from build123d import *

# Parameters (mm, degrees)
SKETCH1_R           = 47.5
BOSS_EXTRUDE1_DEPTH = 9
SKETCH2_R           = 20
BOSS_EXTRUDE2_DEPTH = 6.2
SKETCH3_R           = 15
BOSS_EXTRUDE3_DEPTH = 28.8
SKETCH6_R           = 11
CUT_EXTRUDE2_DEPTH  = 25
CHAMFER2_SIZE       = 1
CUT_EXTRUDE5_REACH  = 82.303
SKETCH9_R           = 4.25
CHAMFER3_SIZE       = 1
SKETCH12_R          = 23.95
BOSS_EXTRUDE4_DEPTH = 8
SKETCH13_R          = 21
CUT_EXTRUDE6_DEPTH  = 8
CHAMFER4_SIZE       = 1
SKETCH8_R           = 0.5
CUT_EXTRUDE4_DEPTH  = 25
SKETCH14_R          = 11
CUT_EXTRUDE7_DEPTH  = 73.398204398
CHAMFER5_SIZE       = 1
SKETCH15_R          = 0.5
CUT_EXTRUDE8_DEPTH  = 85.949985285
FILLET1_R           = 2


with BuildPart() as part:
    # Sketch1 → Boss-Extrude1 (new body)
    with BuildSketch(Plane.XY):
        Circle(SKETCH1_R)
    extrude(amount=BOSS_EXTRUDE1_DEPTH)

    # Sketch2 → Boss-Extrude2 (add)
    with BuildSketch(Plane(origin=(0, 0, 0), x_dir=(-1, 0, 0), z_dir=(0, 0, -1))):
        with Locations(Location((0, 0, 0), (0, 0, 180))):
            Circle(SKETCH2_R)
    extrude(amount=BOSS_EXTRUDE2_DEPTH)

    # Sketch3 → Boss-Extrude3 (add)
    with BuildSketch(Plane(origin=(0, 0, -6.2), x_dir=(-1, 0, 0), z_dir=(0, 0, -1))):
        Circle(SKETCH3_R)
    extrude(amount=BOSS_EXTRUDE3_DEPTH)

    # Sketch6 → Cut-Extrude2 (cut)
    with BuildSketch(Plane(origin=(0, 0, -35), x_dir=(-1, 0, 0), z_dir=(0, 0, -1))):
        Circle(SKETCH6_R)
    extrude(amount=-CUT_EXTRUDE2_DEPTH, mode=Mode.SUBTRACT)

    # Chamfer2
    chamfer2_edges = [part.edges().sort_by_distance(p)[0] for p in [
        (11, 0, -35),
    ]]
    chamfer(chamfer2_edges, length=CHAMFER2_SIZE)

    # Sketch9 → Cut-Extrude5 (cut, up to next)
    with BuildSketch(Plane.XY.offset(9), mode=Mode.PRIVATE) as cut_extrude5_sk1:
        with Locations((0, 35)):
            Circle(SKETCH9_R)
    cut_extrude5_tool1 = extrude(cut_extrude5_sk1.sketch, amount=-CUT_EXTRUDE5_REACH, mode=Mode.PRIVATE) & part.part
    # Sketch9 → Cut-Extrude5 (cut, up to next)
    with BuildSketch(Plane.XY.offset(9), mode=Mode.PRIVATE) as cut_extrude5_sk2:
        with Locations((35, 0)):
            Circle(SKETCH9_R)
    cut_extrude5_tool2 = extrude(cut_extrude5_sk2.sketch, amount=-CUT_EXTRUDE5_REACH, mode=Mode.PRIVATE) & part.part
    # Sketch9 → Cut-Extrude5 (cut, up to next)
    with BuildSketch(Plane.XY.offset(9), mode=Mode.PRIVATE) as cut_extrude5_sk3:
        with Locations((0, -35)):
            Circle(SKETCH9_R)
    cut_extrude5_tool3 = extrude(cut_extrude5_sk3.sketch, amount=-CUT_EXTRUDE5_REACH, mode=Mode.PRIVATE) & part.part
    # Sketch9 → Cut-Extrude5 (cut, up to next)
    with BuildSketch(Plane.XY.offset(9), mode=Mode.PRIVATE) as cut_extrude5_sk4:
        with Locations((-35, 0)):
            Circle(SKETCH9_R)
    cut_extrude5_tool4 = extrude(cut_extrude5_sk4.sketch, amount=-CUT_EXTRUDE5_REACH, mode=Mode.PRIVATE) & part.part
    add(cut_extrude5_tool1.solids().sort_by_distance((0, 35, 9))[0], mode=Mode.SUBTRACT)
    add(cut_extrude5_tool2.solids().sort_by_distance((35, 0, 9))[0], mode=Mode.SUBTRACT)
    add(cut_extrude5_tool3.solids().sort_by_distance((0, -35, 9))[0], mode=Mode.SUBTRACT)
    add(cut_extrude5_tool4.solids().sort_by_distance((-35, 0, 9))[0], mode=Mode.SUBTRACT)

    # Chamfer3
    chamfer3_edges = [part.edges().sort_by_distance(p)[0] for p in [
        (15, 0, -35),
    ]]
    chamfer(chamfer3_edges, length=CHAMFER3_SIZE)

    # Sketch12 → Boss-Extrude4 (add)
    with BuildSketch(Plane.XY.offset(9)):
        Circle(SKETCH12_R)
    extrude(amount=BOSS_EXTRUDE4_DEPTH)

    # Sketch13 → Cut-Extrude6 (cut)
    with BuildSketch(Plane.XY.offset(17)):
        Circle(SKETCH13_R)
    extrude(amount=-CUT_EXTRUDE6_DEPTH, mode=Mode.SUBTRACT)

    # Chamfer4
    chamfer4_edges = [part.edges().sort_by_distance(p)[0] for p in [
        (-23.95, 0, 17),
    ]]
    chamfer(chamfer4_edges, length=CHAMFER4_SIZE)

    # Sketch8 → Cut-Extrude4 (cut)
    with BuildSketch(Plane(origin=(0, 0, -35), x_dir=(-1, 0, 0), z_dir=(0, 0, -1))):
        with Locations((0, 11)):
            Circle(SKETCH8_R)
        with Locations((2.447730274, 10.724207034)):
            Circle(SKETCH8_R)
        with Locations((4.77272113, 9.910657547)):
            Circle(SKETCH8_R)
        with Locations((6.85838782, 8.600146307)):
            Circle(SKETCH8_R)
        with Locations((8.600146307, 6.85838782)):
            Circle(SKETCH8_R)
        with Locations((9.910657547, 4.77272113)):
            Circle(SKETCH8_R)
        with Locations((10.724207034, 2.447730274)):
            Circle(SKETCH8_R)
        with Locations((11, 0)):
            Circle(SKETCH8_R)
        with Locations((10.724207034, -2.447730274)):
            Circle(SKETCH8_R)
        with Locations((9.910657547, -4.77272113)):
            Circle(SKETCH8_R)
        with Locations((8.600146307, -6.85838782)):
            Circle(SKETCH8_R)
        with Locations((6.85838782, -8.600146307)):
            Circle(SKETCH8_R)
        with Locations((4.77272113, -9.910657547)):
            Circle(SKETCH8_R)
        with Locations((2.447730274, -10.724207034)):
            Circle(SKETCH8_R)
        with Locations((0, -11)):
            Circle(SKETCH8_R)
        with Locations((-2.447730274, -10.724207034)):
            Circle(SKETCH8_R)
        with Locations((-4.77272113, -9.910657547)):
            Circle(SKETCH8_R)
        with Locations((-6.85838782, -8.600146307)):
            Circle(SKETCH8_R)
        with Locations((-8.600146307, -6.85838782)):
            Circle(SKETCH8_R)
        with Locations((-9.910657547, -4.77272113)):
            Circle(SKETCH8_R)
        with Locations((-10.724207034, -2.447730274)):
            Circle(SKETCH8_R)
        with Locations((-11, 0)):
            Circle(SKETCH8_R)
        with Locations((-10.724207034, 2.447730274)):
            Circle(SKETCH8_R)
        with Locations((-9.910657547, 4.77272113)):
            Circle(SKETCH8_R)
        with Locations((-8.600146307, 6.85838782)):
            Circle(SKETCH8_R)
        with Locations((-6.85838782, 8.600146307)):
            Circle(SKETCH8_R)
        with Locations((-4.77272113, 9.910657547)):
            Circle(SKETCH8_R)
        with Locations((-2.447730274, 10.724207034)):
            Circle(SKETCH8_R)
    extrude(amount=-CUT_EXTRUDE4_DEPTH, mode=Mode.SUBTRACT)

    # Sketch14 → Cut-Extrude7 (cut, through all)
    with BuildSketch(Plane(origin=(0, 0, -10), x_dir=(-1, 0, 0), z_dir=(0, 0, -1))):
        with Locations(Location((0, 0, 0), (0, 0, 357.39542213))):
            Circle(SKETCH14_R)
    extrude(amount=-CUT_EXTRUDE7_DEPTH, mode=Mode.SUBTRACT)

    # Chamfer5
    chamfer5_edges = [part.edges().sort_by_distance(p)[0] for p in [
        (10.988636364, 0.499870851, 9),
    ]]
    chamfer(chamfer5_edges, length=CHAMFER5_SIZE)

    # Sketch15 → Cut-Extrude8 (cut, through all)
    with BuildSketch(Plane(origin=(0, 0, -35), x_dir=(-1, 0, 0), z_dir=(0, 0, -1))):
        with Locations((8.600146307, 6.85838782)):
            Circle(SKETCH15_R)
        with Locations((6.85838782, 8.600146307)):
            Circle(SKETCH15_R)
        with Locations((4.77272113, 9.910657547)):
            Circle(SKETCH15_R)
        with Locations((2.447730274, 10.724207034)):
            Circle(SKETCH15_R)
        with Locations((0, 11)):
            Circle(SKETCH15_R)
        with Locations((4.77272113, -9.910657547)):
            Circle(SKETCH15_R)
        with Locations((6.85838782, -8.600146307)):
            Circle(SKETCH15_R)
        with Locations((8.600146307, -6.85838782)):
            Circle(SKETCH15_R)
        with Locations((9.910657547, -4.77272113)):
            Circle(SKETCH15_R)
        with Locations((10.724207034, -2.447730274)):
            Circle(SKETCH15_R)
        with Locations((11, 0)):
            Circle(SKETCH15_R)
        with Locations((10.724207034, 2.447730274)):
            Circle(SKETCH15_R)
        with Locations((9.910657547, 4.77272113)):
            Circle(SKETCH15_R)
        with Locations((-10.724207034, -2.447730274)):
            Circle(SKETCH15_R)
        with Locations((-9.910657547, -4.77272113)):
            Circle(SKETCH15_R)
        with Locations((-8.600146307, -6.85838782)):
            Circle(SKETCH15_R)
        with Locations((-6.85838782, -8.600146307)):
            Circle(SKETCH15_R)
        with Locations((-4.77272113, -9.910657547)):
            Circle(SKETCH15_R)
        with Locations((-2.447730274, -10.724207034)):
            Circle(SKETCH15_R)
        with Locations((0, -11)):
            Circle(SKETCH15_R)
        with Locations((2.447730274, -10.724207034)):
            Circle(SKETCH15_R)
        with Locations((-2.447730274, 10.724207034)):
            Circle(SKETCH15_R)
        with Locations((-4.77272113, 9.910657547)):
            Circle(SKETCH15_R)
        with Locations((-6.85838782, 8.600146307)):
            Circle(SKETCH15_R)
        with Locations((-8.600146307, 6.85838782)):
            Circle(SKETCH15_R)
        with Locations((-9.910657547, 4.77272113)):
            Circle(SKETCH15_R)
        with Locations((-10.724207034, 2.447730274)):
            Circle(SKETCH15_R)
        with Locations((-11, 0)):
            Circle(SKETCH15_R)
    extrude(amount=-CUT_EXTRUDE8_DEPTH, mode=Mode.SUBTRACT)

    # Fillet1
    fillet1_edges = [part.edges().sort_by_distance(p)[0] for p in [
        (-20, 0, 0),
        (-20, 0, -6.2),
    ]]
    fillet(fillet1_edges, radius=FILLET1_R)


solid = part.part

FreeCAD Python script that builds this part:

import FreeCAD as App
import Part
import Sketcher
Q = App.Units.Quantity


def edges_at(feature, points):
    """Names of the edges that pass closest to the given points."""
    edges = feature.Shape.Edges
    near = lambda p: min(range(len(edges)), key=lambda i: edges[i].distToShape(Part.Vertex(*p))[0])
    return sorted({f"Edge{near(p) + 1}" for p in points})

doc = App.newDocument("Part")
body = doc.addObject("PartDesign::Body", "Body")

sketch1 = doc.addObject("Sketcher::SketchObject", "Sketch")
body.addObject(sketch1)
sketch1.AttachmentSupport = (doc.XY_Plane, [""])
sketch1.MapMode = "FlatFace"
sketch1.addGeometry(Part.Circle(App.Vector(0, 0, 0), App.Vector(0, 0, 1), 48), False)
sketch1.addConstraint([
    Sketcher.Constraint("Coincident", 0, 3, -1, 1),
    Sketcher.Constraint("Diameter", 0, Q("95 mm")),
])
pad1 = doc.addObject("PartDesign::Pad", "Pad")
body.addObject(pad1)
pad1.Profile = sketch1
pad1.Length = 9

sketch2 = doc.addObject("Sketcher::SketchObject", "Sketch001")
body.addObject(sketch2)
sketch2.AttachmentSupport = (doc.XY_Plane, [""])
sketch2.MapMode = "FlatFace"
sketch2.addGeometry(Part.Circle(App.Vector(0, 0, 0), App.Vector(0, 0, 1), 20), False)
sketch2.addConstraint([
    Sketcher.Constraint("Coincident", 0, 3, -1, 1),
    Sketcher.Constraint("Diameter", 0, Q("40 mm")),
])
pad2 = doc.addObject("PartDesign::Pad", "Pad001")
body.addObject(pad2)
pad2.Profile = sketch2
pad2.Length = 6.2
pad2.Reversed = True

sketch3 = doc.addObject("Sketcher::SketchObject", "Sketch002")
body.addObject(sketch3)
sketch3.AttachmentSupport = (doc.XY_Plane, [""])
sketch3.MapMode = "FlatFace"
sketch3.AttachmentOffset = App.Placement(App.Vector(0, 0, -6.2), App.Rotation())
sketch3.addGeometry(Part.Circle(App.Vector(0, 0, 0), App.Vector(0, 0, 1), 15), False)
sketch3.addConstraint([
    Sketcher.Constraint("Coincident", 0, 3, -1, 1),
    Sketcher.Constraint("Diameter", 0, Q("30 mm")),
])
pad3 = doc.addObject("PartDesign::Pad", "Pad002")
body.addObject(pad3)
pad3.Profile = sketch3
pad3.Length = 28.8
pad3.Reversed = True

sketch4 = doc.addObject("Sketcher::SketchObject", "Sketch003")
body.addObject(sketch4)
sketch4.AttachmentSupport = (doc.XY_Plane, [""])
sketch4.MapMode = "FlatFace"
sketch4.AttachmentOffset = App.Placement(App.Vector(0, 0, -35), App.Rotation())
sketch4.addGeometry(Part.Circle(App.Vector(0, 0, 0), App.Vector(0, 0, 1), 11), False)
sketch4.addConstraint([
    Sketcher.Constraint("Coincident", 0, 3, -1, 1),
    Sketcher.Constraint("Diameter", 0, Q("22 mm")),
])
pocket1 = doc.addObject("PartDesign::Pocket", "Pocket")
body.addObject(pocket1)
pocket1.Profile = sketch4
pocket1.Length = 25
pocket1.Reversed = True
doc.recompute()

chamfer = doc.addObject("PartDesign::Chamfer", "Chamfer")
body.addObject(chamfer)
chamfer.Base = (pocket1, edges_at(pocket1, [(11, 0, -35)]))
chamfer.Size = 1

sketch5 = doc.addObject("Sketcher::SketchObject", "Sketch004")
body.addObject(sketch5)
sketch5.AttachmentSupport = (doc.XY_Plane, [""])
sketch5.MapMode = "FlatFace"
sketch5.AttachmentOffset = App.Placement(App.Vector(0, 0, 9), App.Rotation())
sketch5.addGeometry(Part.Circle(App.Vector(0, 35, 0), App.Vector(0, 0, 1), 4.2), False)
sketch5.addConstraint([
    Sketcher.Constraint("PointOnObject", 0, 3, -2),
    Sketcher.Constraint("Diameter", 0, Q("8.5 mm")),
    Sketcher.Constraint("DistanceY", -1, 1, 0, 3, Q("35 mm")),
])
pocket2 = doc.addObject("PartDesign::Pocket", "Pocket001")
body.addObject(pocket2)
pocket2.Profile = sketch5
pocket2.Type = "UpToFirst"

sketch6 = doc.addObject("Sketcher::SketchObject", "Sketch005")
body.addObject(sketch6)
sketch6.AttachmentSupport = (doc.XY_Plane, [""])
sketch6.MapMode = "FlatFace"
sketch6.AttachmentOffset = App.Placement(App.Vector(0, 0, 9), App.Rotation())
sketch6.addGeometry(Part.Circle(App.Vector(35, 0, 0), App.Vector(0, 0, 1), 4.2), False)
sketch6.addConstraint([
    Sketcher.Constraint("PointOnObject", 0, 3, -1),
    Sketcher.Constraint("Diameter", 0, Q("8.5 mm")),
    Sketcher.Constraint("DistanceX", -1, 1, 0, 3, Q("35 mm")),
])
pocket3 = doc.addObject("PartDesign::Pocket", "Pocket002")
body.addObject(pocket3)
pocket3.Profile = sketch6
pocket3.Type = "UpToFirst"

sketch7 = doc.addObject("Sketcher::SketchObject", "Sketch006")
body.addObject(sketch7)
sketch7.AttachmentSupport = (doc.XY_Plane, [""])
sketch7.MapMode = "FlatFace"
sketch7.AttachmentOffset = App.Placement(App.Vector(0, 0, 9), App.Rotation())
sketch7.addGeometry(Part.Circle(App.Vector(0, -35, 0), App.Vector(0, 0, 1), 4.2), False)
sketch7.addConstraint([
    Sketcher.Constraint("PointOnObject", 0, 3, -2),
    Sketcher.Constraint("Diameter", 0, Q("8.5 mm")),
    Sketcher.Constraint("DistanceY", 0, 3, -1, 1, Q("35 mm")),
])
pocket4 = doc.addObject("PartDesign::Pocket", "Pocket003")
body.addObject(pocket4)
pocket4.Profile = sketch7
pocket4.Type = "UpToFirst"

sketch8 = doc.addObject("Sketcher::SketchObject", "Sketch007")
body.addObject(sketch8)
sketch8.AttachmentSupport = (doc.XY_Plane, [""])
sketch8.MapMode = "FlatFace"
sketch8.AttachmentOffset = App.Placement(App.Vector(0, 0, 9), App.Rotation())
sketch8.addGeometry(Part.Circle(App.Vector(-35, 0, 0), App.Vector(0, 0, 1), 4.2), False)
sketch8.addConstraint([
    Sketcher.Constraint("PointOnObject", 0, 3, -1),
    Sketcher.Constraint("Diameter", 0, Q("8.5 mm")),
    Sketcher.Constraint("DistanceX", 0, 3, -1, 1, Q("35 mm")),
])
pocket5 = doc.addObject("PartDesign::Pocket", "Pocket004")
body.addObject(pocket5)
pocket5.Profile = sketch8
pocket5.Type = "UpToFirst"
doc.recompute()

chamfer2 = doc.addObject("PartDesign::Chamfer", "Chamfer001")
body.addObject(chamfer2)
chamfer2.Base = (pocket5, edges_at(pocket5, [(15, 0, -35)]))
chamfer2.Size = 1

sketch9 = doc.addObject("Sketcher::SketchObject", "Sketch008")
body.addObject(sketch9)
sketch9.AttachmentSupport = (doc.XY_Plane, [""])
sketch9.MapMode = "FlatFace"
sketch9.AttachmentOffset = App.Placement(App.Vector(0, 0, 9), App.Rotation())
sketch9.addGeometry(Part.Circle(App.Vector(0, 0, 0), App.Vector(0, 0, 1), 24), False)
sketch9.addConstraint([
    Sketcher.Constraint("Coincident", 0, 3, -1, 1),
    Sketcher.Constraint("Diameter", 0, Q("47.9 mm")),
])
pad4 = doc.addObject("PartDesign::Pad", "Pad003")
body.addObject(pad4)
pad4.Profile = sketch9
pad4.Length = 8

sketch10 = doc.addObject("Sketcher::SketchObject", "Sketch009")
body.addObject(sketch10)
sketch10.AttachmentSupport = (doc.XY_Plane, [""])
sketch10.MapMode = "FlatFace"
sketch10.AttachmentOffset = App.Placement(App.Vector(0, 0, 17), App.Rotation())
sketch10.addGeometry(Part.Circle(App.Vector(0, 0, 0), App.Vector(0, 0, 1), 21), False)
sketch10.addConstraint([
    Sketcher.Constraint("Coincident", 0, 3, -1, 1),
    Sketcher.Constraint("Diameter", 0, Q("42 mm")),
])
pocket6 = doc.addObject("PartDesign::Pocket", "Pocket005")
body.addObject(pocket6)
pocket6.Profile = sketch10
pocket6.Length = 8
doc.recompute()

chamfer3 = doc.addObject("PartDesign::Chamfer", "Chamfer002")
body.addObject(chamfer3)
chamfer3.Base = (pocket6, edges_at(pocket6, [(-23.95, 0, 17)]))
chamfer3.Size = 1

sketch11 = doc.addObject("Sketcher::SketchObject", "Sketch010")
body.addObject(sketch11)
sketch11.AttachmentSupport = (doc.XY_Plane, [""])
sketch11.MapMode = "FlatFace"
sketch11.AttachmentOffset = App.Placement(App.Vector(0, 0, -35), App.Rotation())
sketch11.addGeometry([
    Part.Circle(App.Vector(0, 11, 0), App.Vector(0, 0, 1), 0.5),
    Part.Circle(App.Vector(-2.4, 10.7, 0), App.Vector(0, 0, 1), 0.5),
    Part.Circle(App.Vector(-4.8, 9.9, 0), App.Vector(0, 0, 1), 0.5),
    Part.Circle(App.Vector(-6.9, 8.6, 0), App.Vector(0, 0, 1), 0.5),
    Part.Circle(App.Vector(-8.6, 6.9, 0), App.Vector(0, 0, 1), 0.5),
    Part.Circle(App.Vector(-9.9, 4.8, 0), App.Vector(0, 0, 1), 0.5),
    Part.Circle(App.Vector(-10.7, 2.4, 0), App.Vector(0, 0, 1), 0.5),
    Part.Circle(App.Vector(-11, 0, 0), App.Vector(0, 0, 1), 0.5),
    Part.Circle(App.Vector(-10.7, -2.4, 0), App.Vector(0, 0, 1), 0.5),
    Part.Circle(App.Vector(-9.9, -4.8, 0), App.Vector(0, 0, 1), 0.5),
    Part.Circle(App.Vector(-8.6, -6.9, 0), App.Vector(0, 0, 1), 0.5),
    Part.Circle(App.Vector(-6.9, -8.6, 0), App.Vector(0, 0, 1), 0.5),
    Part.Circle(App.Vector(-4.8, -9.9, 0), App.Vector(0, 0, 1), 0.5),
    Part.Circle(App.Vector(-2.4, -10.7, 0), App.Vector(0, 0, 1), 0.5),
    Part.Circle(App.Vector(0, -11, 0), App.Vector(0, 0, 1), 0.5),
    Part.Circle(App.Vector(2.4, -10.7, 0), App.Vector(0, 0, 1), 0.5),
    Part.Circle(App.Vector(4.8, -9.9, 0), App.Vector(0, 0, 1), 0.5),
    Part.Circle(App.Vector(6.9, -8.6, 0), App.Vector(0, 0, 1), 0.5),
    Part.Circle(App.Vector(8.6, -6.9, 0), App.Vector(0, 0, 1), 0.5),
    Part.Circle(App.Vector(9.9, -4.8, 0), App.Vector(0, 0, 1), 0.5),
    Part.Circle(App.Vector(10.7, -2.4, 0), App.Vector(0, 0, 1), 0.5),
    Part.Circle(App.Vector(11, 0, 0), App.Vector(0, 0, 1), 0.5),
    Part.Circle(App.Vector(10.7, 2.4, 0), App.Vector(0, 0, 1), 0.5),
    Part.Circle(App.Vector(9.9, 4.8, 0), App.Vector(0, 0, 1), 0.5),
    Part.Circle(App.Vector(8.6, 6.9, 0), App.Vector(0, 0, 1), 0.5),
    Part.Circle(App.Vector(6.9, 8.6, 0), App.Vector(0, 0, 1), 0.5),
    Part.Circle(App.Vector(4.8, 9.9, 0), App.Vector(0, 0, 1), 0.5),
    Part.Circle(App.Vector(2.4, 10.7, 0), App.Vector(0, 0, 1), 0.5),
], False)
sketch11.addConstraint([
    Sketcher.Constraint("Equal", 0, 1),
    Sketcher.Constraint("Equal", 1, 2),
    Sketcher.Constraint("Equal", 2, 3),
    Sketcher.Constraint("Equal", 3, 4),
    Sketcher.Constraint("Equal", 4, 5),
    Sketcher.Constraint("Equal", 5, 6),
    Sketcher.Constraint("Equal", 6, 7),
    Sketcher.Constraint("Equal", 7, 8),
    Sketcher.Constraint("Equal", 8, 9),
    Sketcher.Constraint("Equal", 9, 10),
    Sketcher.Constraint("Equal", 10, 11),
    Sketcher.Constraint("Equal", 11, 12),
    Sketcher.Constraint("Equal", 12, 13),
    Sketcher.Constraint("Equal", 13, 14),
    Sketcher.Constraint("Equal", 14, 15),
    Sketcher.Constraint("Equal", 15, 16),
    Sketcher.Constraint("Equal", 16, 17),
    Sketcher.Constraint("Equal", 17, 18),
    Sketcher.Constraint("Equal", 18, 19),
    Sketcher.Constraint("Equal", 19, 20),
    Sketcher.Constraint("Equal", 20, 21),
    Sketcher.Constraint("Equal", 21, 22),
    Sketcher.Constraint("Equal", 22, 23),
    Sketcher.Constraint("Equal", 23, 24),
    Sketcher.Constraint("Equal", 24, 25),
    Sketcher.Constraint("Equal", 25, 26),
    Sketcher.Constraint("Equal", 26, 27),
    Sketcher.Constraint("Symmetric", 0, 3, 14, 3, -1, 1),
    Sketcher.Constraint("Symmetric", 1, 3, 15, 3, -1, 1),
    Sketcher.Constraint("Symmetric", 2, 3, 16, 3, -1, 1),
    Sketcher.Constraint("Symmetric", 3, 3, 17, 3, -1, 1),
    Sketcher.Constraint("Symmetric", 4, 3, 18, 3, -1, 1),
    Sketcher.Constraint("Symmetric", 5, 3, 19, 3, -1, 1),
    Sketcher.Constraint("Symmetric", 6, 3, 20, 3, -1, 1),
    Sketcher.Constraint("Symmetric", 7, 3, 21, 3, -1, 1),
    Sketcher.Constraint("Symmetric", 8, 3, 22, 3, -1, 1),
    Sketcher.Constraint("Symmetric", 9, 3, 23, 3, -1, 1),
    Sketcher.Constraint("Symmetric", 10, 3, 24, 3, -1, 1),
    Sketcher.Constraint("Symmetric", 11, 3, 25, 3, -1, 1),
    Sketcher.Constraint("Symmetric", 12, 3, 26, 3, -1, 1),
    Sketcher.Constraint("Symmetric", 13, 3, 27, 3, -1, 1),
    Sketcher.Constraint("Symmetric", 13, 3, 15, 3, -2),
    Sketcher.Constraint("Symmetric", 12, 3, 16, 3, -2),
    Sketcher.Constraint("Symmetric", 11, 3, 17, 3, -2),
    Sketcher.Constraint("Symmetric", 10, 3, 18, 3, -2),
    Sketcher.Constraint("Symmetric", 9, 3, 19, 3, -2),
    Sketcher.Constraint("Symmetric", 8, 3, 20, 3, -2),
    Sketcher.Constraint("PointOnObject", 0, 3, -2),
    Sketcher.Constraint("PointOnObject", 7, 3, -1),
    Sketcher.Constraint("Diameter", 0, Q("1 mm")),
    Sketcher.Constraint("DistanceY", -1, 1, 0, 3, Q("11 mm")),
    Sketcher.Constraint("DistanceX", 7, 3, -1, 1, Q("11 mm")),
    Sketcher.Constraint("DistanceX", 1, 3, -1, 1, Q("2.44773 mm")),
    Sketcher.Constraint("DistanceX", 2, 3, -1, 1, Q("4.772721 mm")),
    Sketcher.Constraint("DistanceY", -1, 1, 5, 3, Q("4.772721 mm")),
    Sketcher.Constraint("DistanceY", -1, 1, 6, 3, Q("2.44773 mm")),
    Sketcher.Constraint("DistanceY", 2, 3, 1, 3, Q("0.813549 mm")),
    Sketcher.Constraint("DistanceY", 3, 3, 2, 3, Q("1.310511 mm")),
    Sketcher.Constraint("DistanceX", 4, 3, 3, 3, Q("1.741758 mm")),
    Sketcher.Constraint("DistanceY", 4, 3, 3, 3, Q("1.741758 mm")),
    Sketcher.Constraint("DistanceX", 5, 3, 4, 3, Q("1.310511 mm")),
    Sketcher.Constraint("DistanceX", 6, 3, 5, 3, Q("0.813549 mm")),
    Sketcher.Constraint("DistanceY", 8, 3, 4, 3, Q("9.306118 mm")),
    Sketcher.Constraint("DistanceX", 11, 3, 15, 3, Q("9.306118 mm")),
])
pocket7 = doc.addObject("PartDesign::Pocket", "Pocket006")
body.addObject(pocket7)
pocket7.Profile = sketch11
pocket7.Length = 25
pocket7.Reversed = True

sketch12 = doc.addObject("Sketcher::SketchObject", "Sketch011")
body.addObject(sketch12)
sketch12.AttachmentSupport = (doc.XY_Plane, [""])
sketch12.MapMode = "FlatFace"
sketch12.AttachmentOffset = App.Placement(App.Vector(0, 0, -10), App.Rotation())
sketch12.addGeometry(Part.Circle(App.Vector(0, 0, 0), App.Vector(0, 0, 1), 11), False)
sketch12.addConstraint([
    Sketcher.Constraint("Coincident", 0, 3, -1, 1),
    Sketcher.Constraint("Diameter", 0, Q("22 mm")),
])
pocket8 = doc.addObject("PartDesign::Pocket", "Pocket007")
body.addObject(pocket8)
pocket8.Profile = sketch12
pocket8.Type = "ThroughAll"
pocket8.Reversed = True
doc.recompute()

chamfer4 = doc.addObject("PartDesign::Chamfer", "Chamfer003")
body.addObject(chamfer4)
chamfer4.Base = (pocket8, edges_at(pocket8, [(10.989, 0.5, 9)]))
chamfer4.Size = 1

sketch13 = doc.addObject("Sketcher::SketchObject", "Sketch012")
body.addObject(sketch13)
sketch13.AttachmentSupport = (doc.XY_Plane, [""])
sketch13.MapMode = "FlatFace"
sketch13.AttachmentOffset = App.Placement(App.Vector(0, 0, -35), App.Rotation())
sketch13.addGeometry([
    Part.Circle(App.Vector(-8.6, 6.9, 0), App.Vector(0, 0, 1), 0.5),
    Part.Circle(App.Vector(-6.9, 8.6, 0), App.Vector(0, 0, 1), 0.5),
    Part.Circle(App.Vector(-4.8, 9.9, 0), App.Vector(0, 0, 1), 0.5),
    Part.Circle(App.Vector(-2.4, 10.7, 0), App.Vector(0, 0, 1), 0.5),
    Part.Circle(App.Vector(0, 11, 0), App.Vector(0, 0, 1), 0.5),
    Part.Circle(App.Vector(-4.8, -9.9, 0), App.Vector(0, 0, 1), 0.5),
    Part.Circle(App.Vector(-6.9, -8.6, 0), App.Vector(0, 0, 1), 0.5),
    Part.Circle(App.Vector(-8.6, -6.9, 0), App.Vector(0, 0, 1), 0.5),
    Part.Circle(App.Vector(-9.9, -4.8, 0), App.Vector(0, 0, 1), 0.5),
    Part.Circle(App.Vector(-10.7, -2.4, 0), App.Vector(0, 0, 1), 0.5),
    Part.Circle(App.Vector(-11, 0, 0), App.Vector(0, 0, 1), 0.5),
    Part.Circle(App.Vector(-10.7, 2.4, 0), App.Vector(0, 0, 1), 0.5),
    Part.Circle(App.Vector(-9.9, 4.8, 0), App.Vector(0, 0, 1), 0.5),
    Part.Circle(App.Vector(10.7, -2.4, 0), App.Vector(0, 0, 1), 0.5),
    Part.Circle(App.Vector(9.9, -4.8, 0), App.Vector(0, 0, 1), 0.5),
    Part.Circle(App.Vector(8.6, -6.9, 0), App.Vector(0, 0, 1), 0.5),
    Part.Circle(App.Vector(6.9, -8.6, 0), App.Vector(0, 0, 1), 0.5),
    Part.Circle(App.Vector(4.8, -9.9, 0), App.Vector(0, 0, 1), 0.5),
    Part.Circle(App.Vector(2.4, -10.7, 0), App.Vector(0, 0, 1), 0.5),
    Part.Circle(App.Vector(0, -11, 0), App.Vector(0, 0, 1), 0.5),
    Part.Circle(App.Vector(-2.4, -10.7, 0), App.Vector(0, 0, 1), 0.5),
    Part.Circle(App.Vector(2.4, 10.7, 0), App.Vector(0, 0, 1), 0.5),
    Part.Circle(App.Vector(4.8, 9.9, 0), App.Vector(0, 0, 1), 0.5),
    Part.Circle(App.Vector(6.9, 8.6, 0), App.Vector(0, 0, 1), 0.5),
    Part.Circle(App.Vector(8.6, 6.9, 0), App.Vector(0, 0, 1), 0.5),
    Part.Circle(App.Vector(9.9, 4.8, 0), App.Vector(0, 0, 1), 0.5),
    Part.Circle(App.Vector(10.7, 2.4, 0), App.Vector(0, 0, 1), 0.5),
    Part.Circle(App.Vector(11, 0, 0), App.Vector(0, 0, 1), 0.5),
], False)
sketch13.addConstraint([
    Sketcher.Constraint("Equal", 0, 1),
    Sketcher.Constraint("Equal", 1, 2),
    Sketcher.Constraint("Equal", 2, 3),
    Sketcher.Constraint("Equal", 3, 4),
    Sketcher.Constraint("Equal", 4, 5),
    Sketcher.Constraint("Equal", 5, 6),
    Sketcher.Constraint("Equal", 6, 7),
    Sketcher.Constraint("Equal", 7, 8),
    Sketcher.Constraint("Equal", 8, 9),
    Sketcher.Constraint("Equal", 9, 10),
    Sketcher.Constraint("Equal", 10, 11),
    Sketcher.Constraint("Equal", 11, 12),
    Sketcher.Constraint("Equal", 12, 13),
    Sketcher.Constraint("Equal", 13, 14),
    Sketcher.Constraint("Equal", 14, 15),
    Sketcher.Constraint("Equal", 15, 16),
    Sketcher.Constraint("Equal", 16, 17),
    Sketcher.Constraint("Equal", 17, 18),
    Sketcher.Constraint("Equal", 18, 19),
    Sketcher.Constraint("Equal", 19, 20),
    Sketcher.Constraint("Equal", 20, 21),
    Sketcher.Constraint("Equal", 21, 22),
    Sketcher.Constraint("Equal", 22, 23),
    Sketcher.Constraint("Equal", 23, 24),
    Sketcher.Constraint("Equal", 24, 25),
    Sketcher.Constraint("Equal", 25, 26),
    Sketcher.Constraint("Equal", 26, 27),
    Sketcher.Constraint("Symmetric", 11, 3, 13, 3, -1, 1),
    Sketcher.Constraint("Symmetric", 12, 3, 14, 3, -1, 1),
    Sketcher.Constraint("Symmetric", 0, 3, 15, 3, -1, 1),
    Sketcher.Constraint("Symmetric", 1, 3, 16, 3, -1, 1),
    Sketcher.Constraint("Symmetric", 2, 3, 17, 3, -1, 1),
    Sketcher.Constraint("Symmetric", 3, 3, 18, 3, -1, 1),
    Sketcher.Constraint("Symmetric", 4, 3, 19, 3, -1, 1),
    Sketcher.Constraint("Symmetric", 20, 3, 21, 3, -1, 1),
    Sketcher.Constraint("Symmetric", 5, 3, 22, 3, -1, 1),
    Sketcher.Constraint("Symmetric", 6, 3, 23, 3, -1, 1),
    Sketcher.Constraint("Symmetric", 7, 3, 24, 3, -1, 1),
    Sketcher.Constraint("Symmetric", 8, 3, 25, 3, -1, 1),
    Sketcher.Constraint("Symmetric", 9, 3, 26, 3, -1, 1),
    Sketcher.Constraint("Symmetric", 10, 3, 27, 3, -1, 1),
    Sketcher.Constraint("Symmetric", 9, 3, 13, 3, -2),
    Sketcher.Constraint("Symmetric", 8, 3, 14, 3, -2),
    Sketcher.Constraint("Symmetric", 7, 3, 15, 3, -2),
    Sketcher.Constraint("Symmetric", 6, 3, 16, 3, -2),
    Sketcher.Constraint("Symmetric", 5, 3, 17, 3, -2),
    Sketcher.Constraint("Symmetric", 18, 3, 20, 3, -2),
    Sketcher.Constraint("PointOnObject", 4, 3, -2),
    Sketcher.Constraint("PointOnObject", 10, 3, -1),
    Sketcher.Constraint("Diameter", 0, Q("1 mm")),
    Sketcher.Constraint("DistanceY", -1, 1, 4, 3, Q("11 mm")),
    Sketcher.Constraint("DistanceX", 10, 3, -1, 1, Q("11 mm")),
    Sketcher.Constraint("DistanceX", 2, 3, -1, 1, Q("4.772721 mm")),
    Sketcher.Constraint("DistanceX", 3, 3, -1, 1, Q("2.44773 mm")),
    Sketcher.Constraint("DistanceY", 8, 3, -1, 1, Q("4.772721 mm")),
    Sketcher.Constraint("DistanceY", 9, 3, -1, 1, Q("2.44773 mm")),
    Sketcher.Constraint("DistanceX", 0, 3, 1, 3, Q("1.741758 mm")),
    Sketcher.Constraint("DistanceY", 0, 3, 1, 3, Q("1.741758 mm")),
    Sketcher.Constraint("DistanceY", 1, 3, 2, 3, Q("1.310511 mm")),
    Sketcher.Constraint("DistanceY", 2, 3, 3, 3, Q("0.813549 mm")),
    Sketcher.Constraint("DistanceX", 8, 3, 7, 3, Q("1.310511 mm")),
    Sketcher.Constraint("DistanceY", 8, 3, 0, 3, Q("11.631109 mm")),
    Sketcher.Constraint("DistanceX", 9, 3, 8, 3, Q("0.813549 mm")),
    Sketcher.Constraint("DistanceX", 5, 3, 13, 3, Q("15.496928 mm")),
])
pocket9 = doc.addObject("PartDesign::Pocket", "Pocket008")
body.addObject(pocket9)
pocket9.Profile = sketch13
pocket9.Type = "ThroughAll"
pocket9.Reversed = True
doc.recompute()

fillet = doc.addObject("PartDesign::Fillet", "Fillet")
body.addObject(fillet)
fillet.Base = (pocket9, edges_at(pocket9, [(-20, 0, 0), (-20, 0, -6.2)]))
fillet.Radius = 2

doc.recompute()
